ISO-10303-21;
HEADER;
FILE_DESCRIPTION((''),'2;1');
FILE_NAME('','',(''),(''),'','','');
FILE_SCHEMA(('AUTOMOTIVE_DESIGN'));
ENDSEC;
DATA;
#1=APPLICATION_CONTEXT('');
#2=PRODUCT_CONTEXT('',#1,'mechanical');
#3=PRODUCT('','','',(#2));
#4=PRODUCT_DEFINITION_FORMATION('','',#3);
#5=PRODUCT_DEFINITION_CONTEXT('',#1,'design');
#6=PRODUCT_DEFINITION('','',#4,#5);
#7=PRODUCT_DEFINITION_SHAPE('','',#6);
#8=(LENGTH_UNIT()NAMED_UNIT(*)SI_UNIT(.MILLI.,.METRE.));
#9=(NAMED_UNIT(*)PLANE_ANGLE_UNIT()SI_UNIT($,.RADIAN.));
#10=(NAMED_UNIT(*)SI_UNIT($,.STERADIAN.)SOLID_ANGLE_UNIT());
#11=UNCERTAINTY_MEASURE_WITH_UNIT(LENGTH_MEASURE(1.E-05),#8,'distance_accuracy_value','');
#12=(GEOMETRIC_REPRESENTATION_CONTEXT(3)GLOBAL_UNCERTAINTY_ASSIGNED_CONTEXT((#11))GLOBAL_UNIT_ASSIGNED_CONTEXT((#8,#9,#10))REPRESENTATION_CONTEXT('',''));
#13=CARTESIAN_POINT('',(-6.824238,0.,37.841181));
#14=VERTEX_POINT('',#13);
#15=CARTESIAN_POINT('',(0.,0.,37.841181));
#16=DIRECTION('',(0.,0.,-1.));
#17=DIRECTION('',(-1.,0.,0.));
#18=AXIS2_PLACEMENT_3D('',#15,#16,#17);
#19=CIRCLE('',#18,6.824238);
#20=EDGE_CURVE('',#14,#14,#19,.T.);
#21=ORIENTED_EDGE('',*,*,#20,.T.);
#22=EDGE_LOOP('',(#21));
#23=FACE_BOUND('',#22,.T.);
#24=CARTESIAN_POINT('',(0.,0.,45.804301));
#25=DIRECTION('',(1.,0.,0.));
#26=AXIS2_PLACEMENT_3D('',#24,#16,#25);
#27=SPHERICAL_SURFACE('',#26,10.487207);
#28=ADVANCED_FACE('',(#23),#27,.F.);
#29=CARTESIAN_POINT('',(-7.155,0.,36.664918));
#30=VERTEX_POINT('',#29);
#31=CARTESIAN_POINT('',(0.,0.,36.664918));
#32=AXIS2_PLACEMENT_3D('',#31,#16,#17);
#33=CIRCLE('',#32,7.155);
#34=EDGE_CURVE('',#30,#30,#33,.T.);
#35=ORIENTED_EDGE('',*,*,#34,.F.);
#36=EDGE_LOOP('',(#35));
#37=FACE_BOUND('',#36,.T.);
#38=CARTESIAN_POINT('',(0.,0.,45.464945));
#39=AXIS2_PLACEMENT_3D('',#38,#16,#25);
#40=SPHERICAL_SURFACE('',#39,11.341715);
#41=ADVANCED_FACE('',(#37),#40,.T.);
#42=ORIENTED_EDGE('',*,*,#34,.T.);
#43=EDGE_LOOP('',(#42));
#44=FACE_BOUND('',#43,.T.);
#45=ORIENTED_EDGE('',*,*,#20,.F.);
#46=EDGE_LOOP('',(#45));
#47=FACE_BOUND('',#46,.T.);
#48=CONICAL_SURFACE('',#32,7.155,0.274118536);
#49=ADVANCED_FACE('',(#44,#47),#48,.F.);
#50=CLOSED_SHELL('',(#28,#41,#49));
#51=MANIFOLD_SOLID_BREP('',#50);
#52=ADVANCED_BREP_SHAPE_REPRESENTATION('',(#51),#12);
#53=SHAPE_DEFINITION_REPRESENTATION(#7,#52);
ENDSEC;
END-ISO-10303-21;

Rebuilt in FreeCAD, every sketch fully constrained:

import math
import FreeCAD as App
import Part
import Sketcher
from FreeCAD import Vector
Q = App.Units.Quantity

doc = App.newDocument("Part")
params = doc.addObject("Spreadsheet::Sheet", "Params")
for row, (alias, value) in enumerate([
    ("revolution_angle", "360 deg"),
], start=1):
    params.set(f"A{row}", alias)
    params.set(f"B{row}", "=" + value)
    params.setAlias(f"B{row}", alias)

body = doc.addObject("PartDesign::Body", "Body")

sketch1 = body.newObject("Sketcher::SketchObject", "Sketch")
sketch1.AttachmentSupport = (doc.getObject("XZ_Plane"), [""])
sketch1.MapMode = "FlatFace"
sketch1.addGeometry([
    Part.LineSegment(Vector(7.155, 36.664918, 0), Vector(6.824238, 37.841181, 0)),
    Part.ArcOfCircle(Part.Circle(Vector(0, 45.804301, 0), Vector(0, 0, 1), 10.487207), math.radians(-49.404071), math.radians(90)),
    Part.LineSegment(Vector(0, 56.291508, 0), Vector(0, 56.806659, 0)),
    Part.ArcOfCircle(Part.Circle(Vector(0, 45.464945, 0), Vector(0, 0, 1), 11.341715), math.radians(-50.886623), math.radians(90)),
], False)
sketch1.addConstraint([
    Sketcher.Constraint("Coincident", 0, 2, 1, 1),
    Sketcher.Constraint("Coincident", 1, 2, 2, 1),
    Sketcher.Constraint("Coincident", 2, 2, 3, 2),
    Sketcher.Constraint("Coincident", 3, 1, 0, 1),
    Sketcher.Constraint("Vertical", 2),
    Sketcher.Constraint("PointOnObject", 1, 3, -2),
    Sketcher.Constraint("PointOnObject", 3, 3, -2),
    Sketcher.Constraint("PointOnObject", 1, 2, -2),
    Sketcher.Constraint("DistanceX", -1, 1, 3, 1, Q("7.155 mm")),
    Sketcher.Constraint("Radius", 1, Q("10.487207 mm")),
    Sketcher.Constraint("Radius", 3, Q("11.341715 mm")),
    Sketcher.Constraint("DistanceY", 2, 1, 2, 2, Q("0.515151 mm")),
    Sketcher.Constraint("DistanceY", -1, 1, 1, 3, Q("45.804301 mm")),
    Sketcher.Constraint("DistanceX", -1, 1, 0, 2, Q("6.824238 mm")),
])
revolution = body.newObject("PartDesign::Revolution", "Revolution")
revolution.Profile = sketch1
revolution.ReferenceAxis = (sketch1, ["V_Axis"])
revolution.setExpression("Angle", "Params.revolution_angle")

doc.recompute()
